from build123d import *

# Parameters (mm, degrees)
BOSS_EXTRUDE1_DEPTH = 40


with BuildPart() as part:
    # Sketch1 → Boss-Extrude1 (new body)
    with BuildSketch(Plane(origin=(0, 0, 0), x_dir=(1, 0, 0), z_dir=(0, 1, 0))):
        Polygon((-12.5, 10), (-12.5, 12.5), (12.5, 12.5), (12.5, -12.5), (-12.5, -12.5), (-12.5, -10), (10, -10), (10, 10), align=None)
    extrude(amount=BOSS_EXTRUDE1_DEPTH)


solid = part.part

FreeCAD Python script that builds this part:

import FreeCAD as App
import Part
import Sketcher
from FreeCAD import Vector


def add_polygon(sketch, points):
    """Adds a closed chain of lines whose ends are joined by coincident constraints."""
    first, n = sketch.GeometryCount, len(points)
    for a, b in zip(points, points[1:] + points[:1]):
        sketch.addGeometry(Part.LineSegment(App.Vector(*a, 0), App.Vector(*b, 0)), False)
    for i in range(n):
        sketch.addConstraint(Sketcher.Constraint("Coincident", first + i, 2, first + (i + 1) % n, 1))

doc = App.newDocument("Part")
body = doc.addObject("PartDesign::Body", "Body")

# Sketch on XZ plane
sketch1 = body.newObject("Sketcher::SketchObject", "Sketch")
sketch1.AttachmentSupport = (doc.getObject("XZ_Plane"), [""])
sketch1.MapMode = "FlatFace"
add_polygon(sketch1, [(-12.5, -12.5), (-12.5, -10), (10, -10), (10, 10), (-12.5, 10), (-12.5, 12.5), (12.5, 12.5), (12.5, -12.5)])  # lines 0-7
sketch1.addConstraint([
    Sketcher.Constraint("Vertical", 0),
    Sketcher.Constraint("Horizontal", 1),
    Sketcher.Constraint("Vertical", 2),
    Sketcher.Constraint("Horizontal", 3),
    Sketcher.Constraint("Vertical", 4),
    Sketcher.Constraint("Horizontal", 5),
    Sketcher.Constraint("Vertical", 6),
    Sketcher.Constraint("Horizontal", 7),
    Sketcher.Constraint("Symmetric", 4, 2, 6, 2, -1, 1),
    Sketcher.Constraint("Symmetric", 0, 2, 3, 2, -1),
    Sketcher.Constraint("Equal", 7, 6),
    Sketcher.Constraint("DistanceX", 5, 1, 5, 2, 25.0),
    Sketcher.Constraint("DistanceY", 2, 1, 2, 2, 20.0),
    Sketcher.Constraint("DistanceX", 1, 1, 1, 2, 22.5),
])
pad1 = body.newObject("PartDesign::Pad", "Pad")
pad1.Profile = sketch1
pad1.Length = 40
pad1.Reversed = True

doc.recompute()
